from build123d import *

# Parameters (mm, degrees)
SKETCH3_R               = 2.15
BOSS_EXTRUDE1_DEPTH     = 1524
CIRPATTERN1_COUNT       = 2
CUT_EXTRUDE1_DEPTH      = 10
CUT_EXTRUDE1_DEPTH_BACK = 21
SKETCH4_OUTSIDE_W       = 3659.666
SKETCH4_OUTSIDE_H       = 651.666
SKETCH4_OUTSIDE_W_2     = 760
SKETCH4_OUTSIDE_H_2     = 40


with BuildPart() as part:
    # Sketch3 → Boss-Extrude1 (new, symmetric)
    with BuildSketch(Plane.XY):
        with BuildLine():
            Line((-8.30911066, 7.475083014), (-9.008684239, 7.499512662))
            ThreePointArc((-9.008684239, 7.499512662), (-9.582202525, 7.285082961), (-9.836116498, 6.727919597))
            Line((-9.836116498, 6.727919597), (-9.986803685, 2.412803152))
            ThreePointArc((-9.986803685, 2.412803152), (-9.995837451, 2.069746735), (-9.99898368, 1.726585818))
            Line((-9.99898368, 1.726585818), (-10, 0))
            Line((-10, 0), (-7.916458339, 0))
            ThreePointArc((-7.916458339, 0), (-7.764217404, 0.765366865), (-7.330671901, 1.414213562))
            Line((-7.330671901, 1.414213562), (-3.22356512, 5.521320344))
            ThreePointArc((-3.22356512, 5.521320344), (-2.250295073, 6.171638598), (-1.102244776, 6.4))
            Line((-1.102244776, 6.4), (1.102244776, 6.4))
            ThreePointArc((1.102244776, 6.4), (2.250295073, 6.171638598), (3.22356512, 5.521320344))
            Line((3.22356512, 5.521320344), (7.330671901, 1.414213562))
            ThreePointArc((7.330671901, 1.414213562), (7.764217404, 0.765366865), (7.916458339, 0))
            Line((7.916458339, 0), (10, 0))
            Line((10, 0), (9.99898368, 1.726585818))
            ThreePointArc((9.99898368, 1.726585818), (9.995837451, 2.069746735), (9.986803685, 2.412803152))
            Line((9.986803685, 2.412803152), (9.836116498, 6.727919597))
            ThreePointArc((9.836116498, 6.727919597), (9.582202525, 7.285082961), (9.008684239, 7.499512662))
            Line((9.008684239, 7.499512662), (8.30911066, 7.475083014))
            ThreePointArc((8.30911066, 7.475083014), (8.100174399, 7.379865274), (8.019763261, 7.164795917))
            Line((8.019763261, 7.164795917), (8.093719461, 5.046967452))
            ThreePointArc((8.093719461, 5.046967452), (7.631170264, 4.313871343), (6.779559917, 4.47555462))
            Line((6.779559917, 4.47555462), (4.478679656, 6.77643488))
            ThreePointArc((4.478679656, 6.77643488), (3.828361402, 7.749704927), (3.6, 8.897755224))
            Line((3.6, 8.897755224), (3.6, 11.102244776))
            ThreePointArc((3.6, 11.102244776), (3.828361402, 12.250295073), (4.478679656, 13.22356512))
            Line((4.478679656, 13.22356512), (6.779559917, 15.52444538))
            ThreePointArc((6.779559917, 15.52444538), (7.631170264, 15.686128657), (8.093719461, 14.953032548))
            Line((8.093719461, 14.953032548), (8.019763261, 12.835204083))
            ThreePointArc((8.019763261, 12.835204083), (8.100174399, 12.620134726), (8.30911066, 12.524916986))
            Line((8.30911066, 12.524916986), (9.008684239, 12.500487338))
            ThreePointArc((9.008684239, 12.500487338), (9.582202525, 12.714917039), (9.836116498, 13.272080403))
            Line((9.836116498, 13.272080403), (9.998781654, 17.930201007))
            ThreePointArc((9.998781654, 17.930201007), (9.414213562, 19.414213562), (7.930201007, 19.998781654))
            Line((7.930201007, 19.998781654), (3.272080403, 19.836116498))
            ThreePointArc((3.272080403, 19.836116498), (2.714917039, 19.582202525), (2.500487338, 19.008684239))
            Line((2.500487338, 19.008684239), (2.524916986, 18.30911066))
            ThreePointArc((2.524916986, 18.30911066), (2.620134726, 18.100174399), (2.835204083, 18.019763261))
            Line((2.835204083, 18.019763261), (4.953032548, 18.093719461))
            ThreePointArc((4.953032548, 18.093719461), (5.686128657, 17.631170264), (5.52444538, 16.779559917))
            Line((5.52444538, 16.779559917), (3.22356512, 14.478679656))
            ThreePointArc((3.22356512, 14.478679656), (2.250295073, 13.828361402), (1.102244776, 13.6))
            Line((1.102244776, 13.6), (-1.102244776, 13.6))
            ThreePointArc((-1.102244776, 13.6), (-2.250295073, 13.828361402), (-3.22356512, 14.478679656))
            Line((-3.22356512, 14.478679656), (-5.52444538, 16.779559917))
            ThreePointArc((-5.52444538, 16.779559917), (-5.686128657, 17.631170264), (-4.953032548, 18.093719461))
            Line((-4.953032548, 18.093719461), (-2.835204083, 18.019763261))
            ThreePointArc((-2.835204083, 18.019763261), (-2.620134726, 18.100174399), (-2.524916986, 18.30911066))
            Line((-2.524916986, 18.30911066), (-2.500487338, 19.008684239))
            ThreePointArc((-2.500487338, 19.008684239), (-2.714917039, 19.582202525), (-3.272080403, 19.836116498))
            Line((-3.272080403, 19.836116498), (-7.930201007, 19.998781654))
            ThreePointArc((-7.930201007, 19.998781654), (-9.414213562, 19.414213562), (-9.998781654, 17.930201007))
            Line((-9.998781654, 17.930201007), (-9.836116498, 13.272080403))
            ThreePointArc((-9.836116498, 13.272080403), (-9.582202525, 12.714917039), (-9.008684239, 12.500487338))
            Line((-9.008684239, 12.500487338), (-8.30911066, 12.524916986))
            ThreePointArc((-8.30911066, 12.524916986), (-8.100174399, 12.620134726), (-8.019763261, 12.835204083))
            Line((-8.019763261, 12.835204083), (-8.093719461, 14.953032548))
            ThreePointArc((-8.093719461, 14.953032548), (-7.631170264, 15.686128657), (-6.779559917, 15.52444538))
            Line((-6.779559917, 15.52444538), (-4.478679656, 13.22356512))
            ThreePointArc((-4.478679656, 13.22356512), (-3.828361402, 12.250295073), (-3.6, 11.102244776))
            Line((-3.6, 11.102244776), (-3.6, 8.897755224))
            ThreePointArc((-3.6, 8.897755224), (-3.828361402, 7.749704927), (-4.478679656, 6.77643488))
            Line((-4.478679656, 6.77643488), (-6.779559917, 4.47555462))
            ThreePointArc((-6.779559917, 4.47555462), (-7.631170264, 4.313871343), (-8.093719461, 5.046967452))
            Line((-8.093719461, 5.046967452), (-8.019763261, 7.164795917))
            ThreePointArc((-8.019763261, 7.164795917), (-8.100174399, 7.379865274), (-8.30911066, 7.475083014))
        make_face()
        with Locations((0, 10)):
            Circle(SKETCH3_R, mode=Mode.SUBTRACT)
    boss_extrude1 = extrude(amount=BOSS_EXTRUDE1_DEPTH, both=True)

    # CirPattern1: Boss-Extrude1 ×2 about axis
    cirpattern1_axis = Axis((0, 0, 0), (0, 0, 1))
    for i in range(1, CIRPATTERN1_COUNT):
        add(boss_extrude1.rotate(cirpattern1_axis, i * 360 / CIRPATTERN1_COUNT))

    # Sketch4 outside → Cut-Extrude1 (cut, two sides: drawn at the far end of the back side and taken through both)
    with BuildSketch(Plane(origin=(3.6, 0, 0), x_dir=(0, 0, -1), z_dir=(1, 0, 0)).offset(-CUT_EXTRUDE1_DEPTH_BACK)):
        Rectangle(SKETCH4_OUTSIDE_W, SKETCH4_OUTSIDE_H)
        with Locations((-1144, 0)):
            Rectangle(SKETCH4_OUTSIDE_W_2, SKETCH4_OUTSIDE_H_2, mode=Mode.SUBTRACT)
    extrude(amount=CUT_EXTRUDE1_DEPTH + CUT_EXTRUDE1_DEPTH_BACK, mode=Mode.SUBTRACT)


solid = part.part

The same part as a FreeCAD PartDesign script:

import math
import FreeCAD as App
import Part
import Sketcher
from FreeCAD import Vector
Q = App.Units.Quantity

doc = App.newDocument("Part")
body = doc.addObject("PartDesign::Body", "Body")

sketch1 = body.newObject("Sketcher::SketchObject", "Sketch")
sketch1.AttachmentSupport = (doc.getObject("XY_Plane"), [""])
sketch1.MapMode = "FlatFace"
sketch1.addGeometry([
    Part.LineSegment(Vector(-8.31, 7.48, 0), Vector(-9.01, 7.5, 0)),
    Part.ArcOfCircle(Part.Circle(Vector(-9.04, 6.7, 0), Vector(0, 0, 1), 0.8), math.radians(88), math.radians(178)),
    Part.LineSegment(Vector(-9.84, 6.73, 0), Vector(-9.99, 2.41, 0)),
    Part.ArcOfCircle(Part.Circle(Vector(10, 1.71, 0), Vector(0, 0, 1), 20), math.radians(178), math.radians(179.97)),
    Part.LineSegment(Vector(-10, 1.73, 0), Vector(-10, 0, 0)),
    Part.LineSegment(Vector(-10, 0, 0), Vector(-7.92, 0, 0)),
    Part.ArcOfCircle(Part.Circle(Vector(-5.92, 0, 0), Vector(0, 0, 1), 2), math.radians(135), math.radians(180)),
    Part.LineSegment(Vector(-7.33, 1.41, 0), Vector(-3.22, 5.52, 0)),
    Part.ArcOfCircle(Part.Circle(Vector(-1.1, 3.4, 0), Vector(0, 0, 1), 3), math.radians(90), math.radians(135)),
    Part.LineSegment(Vector(-1.1, 6.4, 0), Vector(1.1, 6.4, 0)),
    Part.ArcOfCircle(Part.Circle(Vector(1.1, 3.4, 0), Vector(0, 0, 1), 3), math.radians(45), math.radians(90)),
    Part.LineSegment(Vector(3.22, 5.52, 0), Vector(7.33, 1.41, 0)),
    Part.ArcOfCircle(Part.Circle(Vector(5.92, 0, 0), Vector(0, 0, 1), 2), math.radians(0), math.radians(45)),
    Part.LineSegment(Vector(7.92, 0, 0), Vector(10, 0, 0)),
    Part.LineSegment(Vector(10, 0, 0), Vector(10, 1.73, 0)),
    Part.ArcOfCircle(Part.Circle(Vector(-10, 1.71, 0), Vector(0, 0, 1), 20), math.radians(0.03), math.radians(2)),
    Part.LineSegment(Vector(9.99, 2.41, 0), Vector(9.84, 6.73, 0)),
    Part.ArcOfCircle(Part.Circle(Vector(9.04, 6.7, 0), Vector(0, 0, 1), 0.8), math.radians(2), math.radians(92)),
    Part.LineSegment(Vector(9.01, 7.5, 0), Vector(8.31, 7.48, 0)),
    Part.ArcOfCircle(Part.Circle(Vector(8.32, 7.18, 0), Vector(0, 0, 1), 0.3), math.radians(92), math.radians(182)),
    Part.LineSegment(Vector(8.02, 7.16, 0), Vector(8.09, 5.05, 0)),
    Part.ArcOfCircle(Part.Circle(Vector(7.32, 5.02, 0), Vector(0, 0, 1), 0.77), math.radians(-135), math.radians(2)),
    Part.LineSegment(Vector(6.78, 4.48, 0), Vector(4.48, 6.78, 0)),
    Part.ArcOfCircle(Part.Circle(Vector(6.6, 8.9, 0), Vector(0, 0, 1), 3), math.radians(180), math.radians(225)),
    Part.LineSegment(Vector(3.6, 8.9, 0), Vector(3.6, 11.1, 0)),
    Part.ArcOfCircle(Part.Circle(Vector(6.6, 11.1, 0), Vector(0, 0, 1), 3), math.radians(135), math.radians(180)),
    Part.LineSegment(Vector(4.48, 13.22, 0), Vector(6.78, 15.52, 0)),
    Part.ArcOfCircle(Part.Circle(Vector(7.32, 14.98, 0), Vector(0, 0, 1), 0.77), math.radians(-2), math.radians(135)),
    Part.LineSegment(Vector(8.09, 14.95, 0), Vector(8.02, 12.84, 0)),
    Part.ArcOfCircle(Part.Circle(Vector(8.32, 12.82, 0), Vector(0, 0, 1), 0.3), math.radians(178), math.radians(268)),
    Part.LineSegment(Vector(8.31, 12.52, 0), Vector(9.01, 12.5, 0)),
    Part.ArcOfCircle(Part.Circle(Vector(9.04, 13.3, 0), Vector(0, 0, 1), 0.8), math.radians(-92), math.radians(-2)),
    Part.LineSegment(Vector(9.84, 13.27, 0), Vector(10, 17.93, 0)),
    Part.ArcOfCircle(Part.Circle(Vector(8, 18, 0), Vector(0, 0, 1), 2), math.radians(-2), math.radians(92)),
    Part.LineSegment(Vector(7.93, 20, 0), Vector(3.27, 19.84, 0)),
    Part.ArcOfCircle(Part.Circle(Vector(3.3, 19.04, 0), Vector(0, 0, 1), 0.8), math.radians(92), math.radians(182)),
    Part.LineSegment(Vector(2.5, 19.01, 0), Vector(2.52, 18.31, 0)),
    Part.ArcOfCircle(Part.Circle(Vector(2.82, 18.32, 0), Vector(0, 0, 1), 0.3), math.radians(-178), math.radians(-88)),
    Part.LineSegment(Vector(2.84, 18.02, 0), Vector(4.95, 18.09, 0)),
    Part.ArcOfCircle(Part.Circle(Vector(4.98, 17.32, 0), Vector(0, 0, 1), 0.77), math.radians(-45), math.radians(92)),
    Part.LineSegment(Vector(5.52, 16.78, 0), Vector(3.22, 14.48, 0)),
    Part.ArcOfCircle(Part.Circle(Vector(1.1, 16.6, 0), Vector(0, 0, 1), 3), math.radians(-90), math.radians(-45)),
    Part.LineSegment(Vector(1.1, 13.6, 0), Vector(-1.1, 13.6, 0)),
    Part.ArcOfCircle(Part.Circle(Vector(-1.1, 16.6, 0), Vector(0, 0, 1), 3), math.radians(-135), math.radians(-90)),
    Part.LineSegment(Vector(-3.22, 14.48, 0), Vector(-5.52, 16.78, 0)),
    Part.ArcOfCircle(Part.Circle(Vector(-4.98, 17.32, 0), Vector(0, 0, 1), 0.77), math.radians(88), math.radians(225)),
    Part.LineSegment(Vector(-4.95, 18.09, 0), Vector(-2.84, 18.02, 0)),
    Part.ArcOfCircle(Part.Circle(Vector(-2.82, 18.32, 0), Vector(0, 0, 1), 0.3), math.radians(-92), math.radians(-2)),
    Part.LineSegment(Vector(-2.52, 18.31, 0), Vector(-2.5, 19.01, 0)),
    Part.ArcOfCircle(Part.Circle(Vector(-3.3, 19.04, 0), Vector(0, 0, 1), 0.8), math.radians(-2), math.radians(88)),
    Part.LineSegment(Vector(-3.27, 19.84, 0), Vector(-7.93, 20, 0)),
    Part.ArcOfCircle(Part.Circle(Vector(-8, 18, 0), Vector(0, 0, 1), 2), math.radians(88), math.radians(182)),
    Part.LineSegment(Vector(-10, 17.93, 0), Vector(-9.84, 13.27, 0)),
    Part.ArcOfCircle(Part.Circle(Vector(-9.04, 13.3, 0), Vector(0, 0, 1), 0.8), math.radians(-178), math.radians(-88)),
    Part.LineSegment(Vector(-9.01, 12.5, 0), Vector(-8.31, 12.52, 0)),
    Part.ArcOfCircle(Part.Circle(Vector(-8.32, 12.82, 0), Vector(0, 0, 1), 0.3), math.radians(-88), math.radians(2)),
    Part.LineSegment(Vector(-8.02, 12.84, 0), Vector(-8.09, 14.95, 0)),
    Part.ArcOfCircle(Part.Circle(Vector(-7.32, 14.98, 0), Vector(0, 0, 1), 0.77), math.radians(45), math.radians(182)),
    Part.LineSegment(Vector(-6.78, 15.52, 0), Vector(-4.48, 13.22, 0)),
    Part.ArcOfCircle(Part.Circle(Vector(-6.6, 11.1, 0), Vector(0, 0, 1), 3), math.radians(0), math.radians(45)),
    Part.LineSegment(Vector(-3.6, 11.1, 0), Vector(-3.6, 8.9, 0)),
    Part.ArcOfCircle(Part.Circle(Vector(-6.6, 8.9, 0), Vector(0, 0, 1), 3), math.radians(-45), math.radians(0)),
    Part.LineSegment(Vector(-4.48, 6.78, 0), Vector(-6.78, 4.48, 0)),
    Part.ArcOfCircle(Part.Circle(Vector(-7.32, 5.02, 0), Vector(0, 0, 1), 0.77), math.radians(178), math.radians(315)),
    Part.LineSegment(Vector(-8.09, 5.05, 0), Vector(-8.02, 7.16, 0)),
    Part.ArcOfCircle(Part.Circle(Vector(-8.32, 7.18, 0), Vector(0, 0, 1), 0.3), math.radians(-2), math.radians(88)),
    Part.Circle(Vector(0, 10, 0), Vector(0, 0, 1), 2.15),
], False)
sketch1.addConstraint([
    Sketcher.Constraint("Tangent", 0, 2, 1, 1),
    Sketcher.Constraint("Tangent", 1, 2, 2, 1),
    Sketcher.Constraint("Tangent", 2, 2, 3, 1),
    Sketcher.Constraint("Tangent", 3, 2, 4, 1),
    Sketcher.Constraint("Coincident", 4, 2, 5, 1),
    Sketcher.Constraint("Coincident", 5, 2, 6, 2),
    Sketcher.Constraint("Tangent", 6, 1, 7, 1),
    Sketcher.Constraint("Tangent", 7, 2, 8, 2),
    Sketcher.Constraint("Tangent", 8, 1, 9, 1),
    Sketcher.Constraint("Tangent", 9, 2, 10, 2),
    Sketcher.Constraint("Tangent", 10, 1, 11, 1),
    Sketcher.Constraint("Tangent", 11, 2, 12, 2),
    Sketcher.Constraint("Coincident", 12, 1, 13, 1),
    Sketcher.Constraint("Coincident", 13, 2, 14, 1),
    Sketcher.Constraint("Tangent", 14, 2, 15, 1),
    Sketcher.Constraint("Tangent", 15, 2, 16, 1),
    Sketcher.Constraint("Tangent", 16, 2, 17, 1),
    Sketcher.Constraint("Tangent", 17, 2, 18, 1),
    Sketcher.Constraint("Tangent", 18, 2, 19, 1),
    Sketcher.Constraint("Tangent", 19, 2, 20, 1),
    Sketcher.Constraint("Tangent", 20, 2, 21, 2),
    Sketcher.Constraint("Tangent", 21, 1, 22, 1),
    Sketcher.Constraint("Tangent", 22, 2, 23, 2),
    Sketcher.Constraint("Tangent", 23, 1, 24, 1),
    Sketcher.Constraint("Tangent", 24, 2, 25, 2),
    Sketcher.Constraint("Tangent", 25, 1, 26, 1),
    Sketcher.Constraint("Tangent", 26, 2, 27, 2),
    Sketcher.Constraint("Tangent", 27, 1, 28, 1),
    Sketcher.Constraint("Tangent", 28, 2, 29, 1),
    Sketcher.Constraint("Tangent", 29, 2, 30, 1),
    Sketcher.Constraint("Tangent", 30, 2, 31, 1),
    Sketcher.Constraint("Tangent", 31, 2, 32, 1),
    Sketcher.Constraint("Tangent", 32, 2, 33, 1),
    Sketcher.Constraint("Tangent", 33, 2, 34, 1),
    Sketcher.Constraint("Tangent", 34, 2, 35, 1),
    Sketcher.Constraint("Tangent", 35, 2, 36, 1),
    Sketcher.Constraint("Tangent", 36, 2, 37, 1),
    Sketcher.Constraint("Tangent", 37, 2, 38, 1),
    Sketcher.Constraint("Tangent", 38, 2, 39, 2),
    Sketcher.Constraint("Tangent", 39, 1, 40, 1),
    Sketcher.Constraint("Tangent", 40, 2, 41, 2),
    Sketcher.Constraint("Tangent", 41, 1, 42, 1),
    Sketcher.Constraint("Tangent", 42, 2, 43, 2),
    Sketcher.Constraint("Tangent", 43, 1, 44, 1),
    Sketcher.Constraint("Tangent", 44, 2, 45, 2),
    Sketcher.Constraint("Tangent", 45, 1, 46, 1),
    Sketcher.Constraint("Tangent", 46, 2, 47, 1),
    Sketcher.Constraint("Tangent", 47, 2, 48, 1),
    Sketcher.Constraint("Tangent", 48, 2, 49, 1),
    Sketcher.Constraint("Tangent", 49, 2, 50, 1),
    Sketcher.Constraint("Tangent", 50, 2, 51, 1),
    Sketcher.Constraint("Tangent", 51, 2, 52, 1),
    Sketcher.Constraint("Tangent", 52, 2, 53, 1),
    Sketcher.Constraint("Tangent", 53, 2, 54, 1),
    Sketcher.Constraint("Tangent", 54, 2, 55, 1),
    Sketcher.Constraint("Tangent", 55, 2, 56, 1),
    Sketcher.Constraint("Tangent", 56, 2, 57, 2),
    Sketcher.Constraint("Tangent", 57, 1, 58, 1),
    Sketcher.Constraint("Tangent", 58, 2, 59, 2),
    Sketcher.Constraint("Tangent", 59, 1, 60, 1),
    Sketcher.Constraint("Tangent", 60, 2, 61, 2),
    Sketcher.Constraint("Tangent", 61, 1, 62, 1),
    Sketcher.Constraint("Tangent", 62, 2, 63, 2),
    Sketcher.Constraint("Tangent", 63, 1, 64, 1),
    Sketcher.Constraint("Tangent", 64, 2, 65, 1),
    Sketcher.Constraint("Tangent", 65, 2, 0, 1),
    Sketcher.Constraint("Horizontal", 5),
    Sketcher.Constraint("Horizontal", 9),
    Sketcher.Constraint("Horizontal", 13),
    Sketcher.Constraint("Vertical", 24),
    Sketcher.Constraint("Horizontal", 42),
    Sketcher.Constraint("Vertical", 60),
    Sketcher.Constraint("Equal", 8, 10),
    Sketcher.Constraint("Equal", 6, 12),
    Sketcher.Constraint("Equal", 3, 15),
    Sketcher.Constraint("Equal", 1, 17),
    Sketcher.Constraint("Equal", 10, 23),
    Sketcher.Constraint("Equal", 23, 25),
    Sketcher.Constraint("Equal", 21, 27),
    Sketcher.Constraint("Equal", 19, 29),
    Sketcher.Constraint("Equal", 17, 31),
    Sketcher.Constraint("Equal", 12, 33),
    Sketcher.Constraint("Equal", 31, 35),
    Sketcher.Constraint("Equal", 29, 37),
    Sketcher.Constraint("Equal", 27, 39),
    Sketcher.Constraint("Equal", 25, 41),
    Sketcher.Constraint("Equal", 41, 43),
    Sketcher.Constraint("Equal", 39, 45),
    Sketcher.Constraint("Equal", 37, 47),
    Sketcher.Constraint("Equal", 35, 49),
    Sketcher.Constraint("Equal", 33, 51),
    Sketcher.Constraint("Equal", 49, 53),
    Sketcher.Constraint("Equal", 47, 55),
    Sketcher.Constraint("Equal", 45, 57),
    Sketcher.Constraint("Equal", 43, 59),
    Sketcher.Constraint("Equal", 59, 61),
    Sketcher.Constraint("Equal", 57, 63),
    Sketcher.Constraint("Equal", 55, 65),
    Sketcher.Constraint("Symmetric", 6, 3, 12, 3, -1, 1),
    Sketcher.Constraint("Symmetric", 4, 2, 13, 2, -1, 1),
    Sketcher.Constraint("Symmetric", 3, 3, 15, 3, -2),
    Sketcher.Constraint("Symmetric", 1, 3, 17, 3, -2),
    Sketcher.Constraint("Symmetric", 39, 3, 45, 3, -2),
    Sketcher.Constraint("Symmetric", 37, 3, 47, 3, -2),
    Sketcher.Constraint("Symmetric", 35, 3, 49, 3, -2),
    Sketcher.Constraint("Symmetric", 33, 3, 51, 3, -2),
    Sketcher.Constraint("Symmetric", 31, 3, 53, 3, -2),
    Sketcher.Constraint("Symmetric", 29, 3, 55, 3, -2),
    Sketcher.Constraint("Symmetric", 27, 3, 57, 3, -2),
    Sketcher.Constraint("Symmetric", 25, 3, 59, 3, -2),
    Sketcher.Constraint("Symmetric", 21, 3, 63, 3, -2),
    Sketcher.Constraint("Symmetric", 19, 3, 65, 3, -2),
    Sketcher.Constraint("Symmetric", 7, 2, 10, 1, -2),
    Sketcher.Constraint("PointOnObject", 66, 3, -2),
    Sketcher.Constraint("PointOnObject", 4, 2, -1),
    Sketcher.Constraint("Perpendicular", 0, 2),
    Sketcher.Constraint("Perpendicular", 7, 11),
    Sketcher.Constraint("Perpendicular", 18, 20),
    Sketcher.Constraint("Parallel", 11, 22),
    Sketcher.Constraint("Perpendicular", 22, 26),
    Sketcher.Constraint("Parallel", 2, 28),
    Sketcher.Constraint("Perpendicular", 28, 30),
    Sketcher.Constraint("Perpendicular", 30, 32),
    Sketcher.Constraint("Perpendicular", 20, 34),
    Sketcher.Constraint("Perpendicular", 34, 36),
    Sketcher.Constraint("Perpendicular", 36, 38),
    Sketcher.Constraint("Parallel", 26, 40),
    Sketcher.Constraint("Perpendicular", 40, 44),
    Sketcher.Constraint("Perpendicular", 58, 62),
    Sketcher.Constraint("Vertical", 21, 3, 27, 3),
    Sketcher.Constraint("Vertical", 19, 3, 29, 3),
    Sketcher.Constraint("Vertical", 17, 3, 31, 3),
    Sketcher.Constraint("Vertical", 10, 3, 41, 3),
    Sketcher.Constraint("Equal", 42, 24),
    Sketcher.Constraint("Equal", 32, 34),
    Sketcher.Constraint("Equal", 30, 36),
    Sketcher.Constraint("Equal", 28, 38),
    Sketcher.Constraint("Equal", 26, 40),
    Sketcher.Constraint("Radius", 6, Q("2 mm")),
    Sketcher.Constraint("Radius", 8, Q("3 mm")),
    Sketcher.Constraint("Diameter", 66, Q("4.3 mm")),
    Sketcher.Constraint("Radius", 1, Q("0.8 mm")),
    Sketcher.Constraint("Radius", 19, Q("0.3 mm")),
    Sketcher.Constraint("Angle", 0, Q("178 deg")),
    Sketcher.Constraint("DistanceX", -1, 1, 33, 3, Q("8 mm")),
    Sketcher.Constraint("DistanceY", -1, 1, 33, 3, Q("18 mm")),
    Sketcher.Constraint("DistanceY", -1, 1, 66, 3, Q("10 mm")),
    Sketcher.Constraint("DistanceX", 4, 2, -1, 1, Q("10 mm")),
    Sketcher.Constraint("Distance", 0, Q("0.7 mm")),
    Sketcher.Constraint("DistanceY", -1, 1, 1, 3, Q("6.7 mm")),
    Sketcher.Constraint("DistanceY", -1, 1, 8, 3, Q("3.4 mm")),
    Sketcher.Constraint("DistanceX", -1, 1, 23, 3, Q("6.6 mm")),
    Sketcher.Constraint("Radius", 21, Q("0.770092 mm")),
    Sketcher.Constraint("Radius", 3, Q("20.000005 mm")),
    Sketcher.Constraint("DistanceX", 5, 1, 5, 2, Q("2.083542 mm")),
    Sketcher.Constraint("Distance", 2, Q("4.317747 mm")),
])
pad1 = body.newObject("PartDesign::Pad", "Pad")
pad1.Profile = sketch1
pad1.Length = 3048
pad1.Midplane = True
doc.recompute()

polarpattern = body.newObject("PartDesign::PolarPattern", "PolarPattern")
polarpattern.Originals = [pad1]
polarpattern.Axis = (doc.getObject("Z_Axis"), [""])
polarpattern.Angle = 360
polarpattern.Occurrences = 2
body.Tip = polarpattern

sketch2 = body.newObject("Sketcher::SketchObject", "Sketch001")
sketch2.AttachmentSupport = (doc.getObject("YZ_Plane"), [""])
sketch2.MapMode = "FlatFace"
sketch2.AttachmentOffset = App.Placement(Vector(0, 0, 3.6), App.Rotation())
sketch2.addGeometry([
    Part.LineSegment(Vector(326, 1830, 0), Vector(-326, 1830, 0)),
    Part.LineSegment(Vector(-326, 1830, 0), Vector(-326, -1830, 0)),
    Part.LineSegment(Vector(-326, -1830, 0), Vector(326, -1830, 0)),
    Part.LineSegment(Vector(326, -1830, 0), Vector(326, 1830, 0)),
    Part.LineSegment(Vector(-20, 764, 0), Vector(-20, 1524, 0)),
    Part.LineSegment(Vector(-20, 1524, 0), Vector(20, 1524, 0)),
    Part.LineSegment(Vector(20, 1524, 0), Vector(20, 764, 0)),
    Part.LineSegment(Vector(20, 764, 0), Vector(-20, 764, 0)),
], False)
sketch2.addConstraint([
    Sketcher.Constraint("Coincident", 0, 2, 1, 1),
    Sketcher.Constraint("Coincident", 1, 2, 2, 1),
    Sketcher.Constraint("Coincident", 2, 2, 3, 1),
    Sketcher.Constraint("Coincident", 3, 2, 0, 1),
    Sketcher.Constraint("Coincident", 4, 2, 5, 1),
    Sketcher.Constraint("Coincident", 5, 2, 6, 1),
    Sketcher.Constraint("Coincident", 6, 2, 7, 1),
    Sketcher.Constraint("Coincident", 7, 2, 4, 1),
    Sketcher.Constraint("Horizontal", 0),
    Sketcher.Constraint("Vertical", 1),
    Sketcher.Constraint("Horizontal", 2),
    Sketcher.Constraint("Vertical", 3),
    Sketcher.Constraint("Vertical", 4),
    Sketcher.Constraint("Horizontal", 5),
    Sketcher.Constraint("Vertical", 6),
    Sketcher.Constraint("Horizontal", 7),
    Sketcher.Constraint("Symmetric", 0, 2, 2, 2, -1, 1),
    Sketcher.Constraint("DistanceX", 5, 1, 5, 2, Q("40 mm")),
    Sketcher.Constraint("DistanceY", 4, 1, 4, 2, Q("760 mm")),
    Sketcher.Constraint("DistanceX", 4, 2, -1, 1, Q("20 mm")),
    Sketcher.Constraint("DistanceY", -1, 1, 4, 2, Q("1524 mm")),
    Sketcher.Constraint("DistanceX", 0, 2, 0, 1, Q("651.666 mm")),
    Sketcher.Constraint("DistanceY", 1, 2, 1, 1, Q("3659.666 mm")),
])
pocket1 = body.newObject("PartDesign::Pocket", "Pocket")
pocket1.Profile = sketch2
pocket1.Type = "ThroughAll"
pocket1.Midplane = True

doc.recompute()
